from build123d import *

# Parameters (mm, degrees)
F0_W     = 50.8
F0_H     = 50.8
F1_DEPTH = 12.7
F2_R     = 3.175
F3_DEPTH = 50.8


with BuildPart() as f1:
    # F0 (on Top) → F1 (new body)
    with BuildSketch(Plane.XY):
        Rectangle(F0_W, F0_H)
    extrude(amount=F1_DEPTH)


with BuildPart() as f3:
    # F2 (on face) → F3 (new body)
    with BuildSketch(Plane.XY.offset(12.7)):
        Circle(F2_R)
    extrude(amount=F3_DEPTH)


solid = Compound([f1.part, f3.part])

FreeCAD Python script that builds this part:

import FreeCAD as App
import Part
import Sketcher
from FreeCAD import Vector
Q = App.Units.Quantity

doc = App.newDocument("Part")
body = doc.addObject("PartDesign::Body", "Body")

sketch1 = body.newObject("Sketcher::SketchObject", "Sketch")
sketch1.AttachmentSupport = (doc.getObject("XY_Plane"), [""])
sketch1.MapMode = "FlatFace"
sketch1.addGeometry([
    Part.LineSegment(Vector(-25, 25, 0), Vector(-25, -25, 0)),
    Part.LineSegment(Vector(-25, -25, 0), Vector(25, -25, 0)),
    Part.LineSegment(Vector(25, -25, 0), Vector(25, 25, 0)),
    Part.LineSegment(Vector(25, 25, 0), Vector(-25, 25, 0)),
], False)
sketch1.addConstraint([
    Sketcher.Constraint("Coincident", 0, 2, 1, 1),
    Sketcher.Constraint("Coincident", 1, 2, 2, 1),
    Sketcher.Constraint("Coincident", 2, 2, 3, 1),
    Sketcher.Constraint("Coincident", 3, 2, 0, 1),
    Sketcher.Constraint("Vertical", 0),
    Sketcher.Constraint("Horizontal", 1),
    Sketcher.Constraint("Vertical", 2),
    Sketcher.Constraint("Horizontal", 3),
    Sketcher.Constraint("Symmetric", 0, 2, 2, 2, -1, 1),
    Sketcher.Constraint("Equal", 3, 0),
    Sketcher.Constraint("DistanceX", 1, 1, 1, 2, Q("2 in")),
])
pad1 = body.newObject("PartDesign::Pad", "Pad")
pad1.Profile = sketch1
pad1.Length = Q("0.5 in")
body2 = doc.addObject("PartDesign::Body", "Body001")

sketch2 = body2.newObject("Sketcher::SketchObject", "Sketch001")
sketch2.AttachmentSupport = (doc.getObject("XY_Plane001"), [""])
sketch2.MapMode = "FlatFace"
sketch2.AttachmentOffset = App.Placement(Vector(0, 0, 0.5 * 25.4), App.Rotation())
sketch2.addGeometry(Part.Circle(Vector(0, 0, 0), Vector(0, 0, 1), 3.2), False)
sketch2.addConstraint([
    Sketcher.Constraint("Coincident", 0, 3, -1, 1),
    Sketcher.Constraint("Diameter", 0, Q("0.25 in")),
])
pad2 = body2.newObject("PartDesign::Pad", "Pad001")
pad2.Profile = sketch2
pad2.Length = Q("2 in")

doc.recompute()
